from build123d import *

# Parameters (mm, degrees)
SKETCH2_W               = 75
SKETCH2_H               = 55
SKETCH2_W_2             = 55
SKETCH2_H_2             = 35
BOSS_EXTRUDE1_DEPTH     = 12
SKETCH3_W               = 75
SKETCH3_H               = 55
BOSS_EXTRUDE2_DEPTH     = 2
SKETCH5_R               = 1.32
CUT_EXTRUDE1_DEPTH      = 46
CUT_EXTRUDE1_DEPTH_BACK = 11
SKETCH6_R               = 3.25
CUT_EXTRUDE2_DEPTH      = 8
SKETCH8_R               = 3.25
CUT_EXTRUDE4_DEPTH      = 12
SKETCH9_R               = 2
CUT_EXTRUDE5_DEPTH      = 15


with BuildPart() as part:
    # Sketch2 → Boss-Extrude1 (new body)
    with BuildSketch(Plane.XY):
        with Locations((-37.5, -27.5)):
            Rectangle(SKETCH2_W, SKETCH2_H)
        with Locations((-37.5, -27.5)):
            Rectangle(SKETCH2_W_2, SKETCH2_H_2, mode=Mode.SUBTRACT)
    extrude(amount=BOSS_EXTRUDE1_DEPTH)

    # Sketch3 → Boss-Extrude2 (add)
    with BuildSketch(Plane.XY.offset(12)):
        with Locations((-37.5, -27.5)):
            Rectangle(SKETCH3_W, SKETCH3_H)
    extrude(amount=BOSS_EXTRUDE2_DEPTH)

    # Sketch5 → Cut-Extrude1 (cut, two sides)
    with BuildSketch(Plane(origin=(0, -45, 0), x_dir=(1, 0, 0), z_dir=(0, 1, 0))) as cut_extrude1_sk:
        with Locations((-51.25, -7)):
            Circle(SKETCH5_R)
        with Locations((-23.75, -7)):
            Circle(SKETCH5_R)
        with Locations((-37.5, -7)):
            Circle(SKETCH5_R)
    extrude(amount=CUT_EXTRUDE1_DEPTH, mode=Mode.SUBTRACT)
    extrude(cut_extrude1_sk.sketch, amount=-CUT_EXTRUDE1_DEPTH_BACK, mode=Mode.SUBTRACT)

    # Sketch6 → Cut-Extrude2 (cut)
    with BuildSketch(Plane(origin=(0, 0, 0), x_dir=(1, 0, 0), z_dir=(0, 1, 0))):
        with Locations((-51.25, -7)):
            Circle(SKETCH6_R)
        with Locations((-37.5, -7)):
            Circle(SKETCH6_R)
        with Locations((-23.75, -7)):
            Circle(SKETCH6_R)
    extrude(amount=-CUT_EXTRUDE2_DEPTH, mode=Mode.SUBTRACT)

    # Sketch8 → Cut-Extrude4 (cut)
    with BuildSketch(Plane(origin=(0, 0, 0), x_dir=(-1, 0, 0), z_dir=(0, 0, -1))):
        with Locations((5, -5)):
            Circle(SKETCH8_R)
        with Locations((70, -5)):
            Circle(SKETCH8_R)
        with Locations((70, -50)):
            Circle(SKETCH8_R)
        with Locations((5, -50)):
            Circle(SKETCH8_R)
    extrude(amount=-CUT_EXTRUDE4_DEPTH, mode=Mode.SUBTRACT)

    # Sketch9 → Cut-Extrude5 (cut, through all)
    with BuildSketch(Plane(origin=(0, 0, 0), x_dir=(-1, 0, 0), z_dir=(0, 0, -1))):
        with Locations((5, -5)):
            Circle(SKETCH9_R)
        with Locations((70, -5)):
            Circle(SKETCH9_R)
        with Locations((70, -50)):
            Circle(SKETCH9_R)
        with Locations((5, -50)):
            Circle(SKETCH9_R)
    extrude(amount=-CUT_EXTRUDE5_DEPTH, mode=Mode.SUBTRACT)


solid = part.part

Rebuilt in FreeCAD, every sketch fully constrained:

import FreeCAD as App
import Part
import Sketcher

V = App.Vector
Q = App.Units.Quantity


def add_polygon(sketch, points):
    """Adds a closed chain of lines whose ends are joined by coincident constraints."""
    first, n = sketch.GeometryCount, len(points)
    for a, b in zip(points, points[1:] + points[:1]):
        sketch.addGeometry(Part.LineSegment(App.Vector(*a, 0), App.Vector(*b, 0)), False)
    for i in range(n):
        sketch.addConstraint(Sketcher.Constraint("Coincident", first + i, 2, first + (i + 1) % n, 1))

doc = App.newDocument("Part")
body = doc.addObject("PartDesign::Body", "Body")

sketch1 = body.newObject("Sketcher::SketchObject", "Sketch")
sketch1.AttachmentSupport = (doc.getObject("XY_Plane"), [""])
sketch1.MapMode = "FlatFace"
add_polygon(sketch1, [(-75, 0), (-75, -55), (0, -55), (0, 0)])
add_polygon(sketch1, [(-10, -45), (-65, -45), (-65, -10), (-10, -10)])
sketch1.addConstraint(Sketcher.Constraint("Vertical", 0))
sketch1.addConstraint(Sketcher.Constraint("Horizontal", 1))
sketch1.addConstraint(Sketcher.Constraint("Vertical", 2))
sketch1.addConstraint(Sketcher.Constraint("Horizontal", 3))
sketch1.addConstraint(Sketcher.Constraint("Horizontal", 4))
sketch1.addConstraint(Sketcher.Constraint("Vertical", 5))
sketch1.addConstraint(Sketcher.Constraint("Horizontal", 6))
sketch1.addConstraint(Sketcher.Constraint("Vertical", 7))
sketch1.addConstraint(Sketcher.Constraint("Coincident", 2, 2, -1, 1))
sketch1.addConstraint(Sketcher.Constraint("Equal", 6, 0))
sketch1.addConstraint(Sketcher.Constraint("DistanceX", 1, 1, 1, 2, Q("75 mm")))
sketch1.addConstraint(Sketcher.Constraint("DistanceX", 4, 2, 4, 1, Q("55 mm")))
sketch1.addConstraint(Sketcher.Constraint("DistanceY", 5, 1, 5, 2, Q("35 mm")))
sketch1.addConstraint(Sketcher.Constraint("DistanceX", 4, 2, -1, 1, Q("65 mm")))
sketch1.addConstraint(Sketcher.Constraint("DistanceY", 4, 2, -1, 1, Q("45 mm")))
pad1 = body.newObject("PartDesign::Pad", "Pad")
pad1.Profile = sketch1
pad1.Length = 12

sketch2 = body.newObject("Sketcher::SketchObject", "Sketch001")
sketch2.AttachmentSupport = (doc.getObject("XY_Plane"), [""])
sketch2.MapMode = "FlatFace"
sketch2.AttachmentOffset = App.Placement(V(0, 0, 12), App.Rotation())
add_polygon(sketch2, [(-75, 0), (-75, -55), (0, -55), (0, 0)])
sketch2.addConstraint(Sketcher.Constraint("Vertical", 0))
sketch2.addConstraint(Sketcher.Constraint("Horizontal", 1))
sketch2.addConstraint(Sketcher.Constraint("Vertical", 2))
sketch2.addConstraint(Sketcher.Constraint("Horizontal", 3))
sketch2.addConstraint(Sketcher.Constraint("Coincident", 2, 2, -1, 1))
sketch2.addConstraint(Sketcher.Constraint("DistanceX", 1, 1, 1, 2, Q("75 mm")))
sketch2.addConstraint(Sketcher.Constraint("DistanceY", 0, 2, 0, 1, Q("55 mm")))
pad2 = body.newObject("PartDesign::Pad", "Pad001")
pad2.Profile = sketch2
pad2.Length = 2

sketch3 = body.newObject("Sketcher::SketchObject", "Sketch002")
sketch3.AttachmentSupport = (doc.getObject("XZ_Plane"), [""])
sketch3.MapMode = "FlatFace"
sketch3.AttachmentOffset = App.Placement(V(0, 0, 45), App.Rotation())
sketch3.addGeometry(Part.Circle(V(-51.25, 7, 0), V(0, 0, 1), 1.32), False)
sketch3.addGeometry(Part.Circle(V(-23.75, 7, 0), V(0, 0, 1), 1.32), False)
sketch3.addGeometry(Part.Circle(V(-37.5, 7, 0), V(0, 0, 1), 1.32), False)
sketch3.addConstraint(Sketcher.Constraint("Equal", 0, 1))
sketch3.addConstraint(Sketcher.Constraint("Equal", 1, 2))
sketch3.addConstraint(Sketcher.Constraint("Horizontal", 0, 3, 1, 3))
sketch3.addConstraint(Sketcher.Constraint("Horizontal", 1, 3, 2, 3))
sketch3.addConstraint(Sketcher.Constraint("Diameter", 0, Q("2.64 mm")))
sketch3.addConstraint(Sketcher.Constraint("DistanceY", -1, 1, 0, 3, Q("7 mm")))
sketch3.addConstraint(Sketcher.Constraint("DistanceX", 2, 3, -1, 1, Q("37.5 mm")))
sketch3.addConstraint(Sketcher.Constraint("DistanceX", 0, 3, 1, 3, Q("27.5 mm")))
sketch3.addConstraint(Sketcher.Constraint("DistanceX", 0, 3, -1, 1, Q("51.25 mm")))
pocket1 = body.newObject("PartDesign::Pocket", "Pocket")
pocket1.Profile = sketch3
pocket1.Type = "ThroughAll"
pocket1.Midplane = True

sketch4 = body.newObject("Sketcher::SketchObject", "Sketch003")
sketch4.AttachmentSupport = (doc.getObject("XZ_Plane"), [""])
sketch4.MapMode = "FlatFace"
sketch4.addGeometry(Part.Circle(V(-51.25, 7, 0), V(0, 0, 1), 3.25), False)
sketch4.addGeometry(Part.Circle(V(-37.5, 7, 0), V(0, 0, 1), 3.25), False)
sketch4.addGeometry(Part.Circle(V(-23.75, 7, 0), V(0, 0, 1), 3.25), False)
sketch4.addConstraint(Sketcher.Constraint("Equal", 0, 1))
sketch4.addConstraint(Sketcher.Constraint("Equal", 1, 2))
sketch4.addConstraint(Sketcher.Constraint("Horizontal", 0, 3, 1, 3))
sketch4.addConstraint(Sketcher.Constraint("Horizontal", 1, 3, 2, 3))
sketch4.addConstraint(Sketcher.Constraint("Diameter", 0, Q("6.5 mm")))
sketch4.addConstraint(Sketcher.Constraint("DistanceY", -1, 1, 0, 3, Q("7 mm")))
sketch4.addConstraint(Sketcher.Constraint("DistanceX", 1, 3, -1, 1, Q("37.5 mm")))
sketch4.addConstraint(Sketcher.Constraint("DistanceX", 0, 3, 2, 3, Q("27.5 mm")))
sketch4.addConstraint(Sketcher.Constraint("DistanceX", 0, 3, -1, 1, Q("51.25 mm")))
pocket2 = body.newObject("PartDesign::Pocket", "Pocket001")
pocket2.Profile = sketch4
pocket2.Length = 8
pocket2.Reversed = True

sketch5 = body.newObject("Sketcher::SketchObject", "Sketch004")
sketch5.AttachmentSupport = (doc.getObject("XY_Plane"), [""])
sketch5.MapMode = "FlatFace"
sketch5.addGeometry(Part.Circle(V(-5, -5, 0), V(0, 0, 1), 3.25), False)
sketch5.addGeometry(Part.Circle(V(-70, -5, 0), V(0, 0, 1), 3.25), False)
sketch5.addGeometry(Part.Circle(V(-70, -50, 0), V(0, 0, 1), 3.25), False)
sketch5.addGeometry(Part.Circle(V(-5, -50, 0), V(0, 0, 1), 3.25), False)
sketch5.addConstraint(Sketcher.Constraint("Equal", 0, 1))
sketch5.addConstraint(Sketcher.Constraint("Equal", 1, 2))
sketch5.addConstraint(Sketcher.Constraint("Equal", 2, 3))
sketch5.addConstraint(Sketcher.Constraint("Horizontal", 0, 3, 1, 3))
sketch5.addConstraint(Sketcher.Constraint("Horizontal", 2, 3, 3, 3))
sketch5.addConstraint(Sketcher.Constraint("Vertical", 1, 3, 2, 3))
sketch5.addConstraint(Sketcher.Constraint("Vertical", 0, 3, 3, 3))
sketch5.addConstraint(Sketcher.Constraint("Diameter", 0, Q("6.5 mm")))
sketch5.addConstraint(Sketcher.Constraint("DistanceX", 0, 3, -1, 1, Q("5 mm")))
sketch5.addConstraint(Sketcher.Constraint("DistanceY", 0, 3, -1, 1, Q("5 mm")))
sketch5.addConstraint(Sketcher.Constraint("DistanceX", 1, 3, -1, 1, Q("70 mm")))
sketch5.addConstraint(Sketcher.Constraint("DistanceY", 2, 3, -1, 1, Q("50 mm")))
pocket3 = body.newObject("PartDesign::Pocket", "Pocket002")
pocket3.Profile = sketch5
pocket3.Length = 12
pocket3.Reversed = True

sketch6 = body.newObject("Sketcher::SketchObject", "Sketch005")
sketch6.AttachmentSupport = (doc.getObject("XY_Plane"), [""])
sketch6.MapMode = "FlatFace"
sketch6.addGeometry(Part.Circle(V(-5, -5, 0), V(0, 0, 1), 2), False)
sketch6.addGeometry(Part.Circle(V(-70, -5, 0), V(0, 0, 1), 2), False)
sketch6.addGeometry(Part.Circle(V(-70, -50, 0), V(0, 0, 1), 2), False)
sketch6.addGeometry(Part.Circle(V(-5, -50, 0), V(0, 0, 1), 2), False)
sketch6.addConstraint(Sketcher.Constraint("Equal", 0, 1))
sketch6.addConstraint(Sketcher.Constraint("Equal", 1, 2))
sketch6.addConstraint(Sketcher.Constraint("Equal", 2, 3))
sketch6.addConstraint(Sketcher.Constraint("Horizontal", 0, 3, 1, 3))
sketch6.addConstraint(Sketcher.Constraint("Horizontal", 2, 3, 3, 3))
sketch6.addConstraint(Sketcher.Constraint("Vertical", 1, 3, 2, 3))
sketch6.addConstraint(Sketcher.Constraint("Vertical", 0, 3, 3, 3))
sketch6.addConstraint(Sketcher.Constraint("Diameter", 0, Q("4 mm")))
sketch6.addConstraint(Sketcher.Constraint("DistanceX", 0, 3, -1, 1, Q("5 mm")))
sketch6.addConstraint(Sketcher.Constraint("DistanceY", 0, 3, -1, 1, Q("5 mm")))
sketch6.addConstraint(Sketcher.Constraint("DistanceX", 1, 3, -1, 1, Q("70 mm")))
sketch6.addConstraint(Sketcher.Constraint("DistanceY", 2, 3, -1, 1, Q("50 mm")))
pocket4 = body.newObject("PartDesign::Pocket", "Pocket003")
pocket4.Profile = sketch6
pocket4.Type = "ThroughAll"
pocket4.Reversed = True

doc.recompute()
